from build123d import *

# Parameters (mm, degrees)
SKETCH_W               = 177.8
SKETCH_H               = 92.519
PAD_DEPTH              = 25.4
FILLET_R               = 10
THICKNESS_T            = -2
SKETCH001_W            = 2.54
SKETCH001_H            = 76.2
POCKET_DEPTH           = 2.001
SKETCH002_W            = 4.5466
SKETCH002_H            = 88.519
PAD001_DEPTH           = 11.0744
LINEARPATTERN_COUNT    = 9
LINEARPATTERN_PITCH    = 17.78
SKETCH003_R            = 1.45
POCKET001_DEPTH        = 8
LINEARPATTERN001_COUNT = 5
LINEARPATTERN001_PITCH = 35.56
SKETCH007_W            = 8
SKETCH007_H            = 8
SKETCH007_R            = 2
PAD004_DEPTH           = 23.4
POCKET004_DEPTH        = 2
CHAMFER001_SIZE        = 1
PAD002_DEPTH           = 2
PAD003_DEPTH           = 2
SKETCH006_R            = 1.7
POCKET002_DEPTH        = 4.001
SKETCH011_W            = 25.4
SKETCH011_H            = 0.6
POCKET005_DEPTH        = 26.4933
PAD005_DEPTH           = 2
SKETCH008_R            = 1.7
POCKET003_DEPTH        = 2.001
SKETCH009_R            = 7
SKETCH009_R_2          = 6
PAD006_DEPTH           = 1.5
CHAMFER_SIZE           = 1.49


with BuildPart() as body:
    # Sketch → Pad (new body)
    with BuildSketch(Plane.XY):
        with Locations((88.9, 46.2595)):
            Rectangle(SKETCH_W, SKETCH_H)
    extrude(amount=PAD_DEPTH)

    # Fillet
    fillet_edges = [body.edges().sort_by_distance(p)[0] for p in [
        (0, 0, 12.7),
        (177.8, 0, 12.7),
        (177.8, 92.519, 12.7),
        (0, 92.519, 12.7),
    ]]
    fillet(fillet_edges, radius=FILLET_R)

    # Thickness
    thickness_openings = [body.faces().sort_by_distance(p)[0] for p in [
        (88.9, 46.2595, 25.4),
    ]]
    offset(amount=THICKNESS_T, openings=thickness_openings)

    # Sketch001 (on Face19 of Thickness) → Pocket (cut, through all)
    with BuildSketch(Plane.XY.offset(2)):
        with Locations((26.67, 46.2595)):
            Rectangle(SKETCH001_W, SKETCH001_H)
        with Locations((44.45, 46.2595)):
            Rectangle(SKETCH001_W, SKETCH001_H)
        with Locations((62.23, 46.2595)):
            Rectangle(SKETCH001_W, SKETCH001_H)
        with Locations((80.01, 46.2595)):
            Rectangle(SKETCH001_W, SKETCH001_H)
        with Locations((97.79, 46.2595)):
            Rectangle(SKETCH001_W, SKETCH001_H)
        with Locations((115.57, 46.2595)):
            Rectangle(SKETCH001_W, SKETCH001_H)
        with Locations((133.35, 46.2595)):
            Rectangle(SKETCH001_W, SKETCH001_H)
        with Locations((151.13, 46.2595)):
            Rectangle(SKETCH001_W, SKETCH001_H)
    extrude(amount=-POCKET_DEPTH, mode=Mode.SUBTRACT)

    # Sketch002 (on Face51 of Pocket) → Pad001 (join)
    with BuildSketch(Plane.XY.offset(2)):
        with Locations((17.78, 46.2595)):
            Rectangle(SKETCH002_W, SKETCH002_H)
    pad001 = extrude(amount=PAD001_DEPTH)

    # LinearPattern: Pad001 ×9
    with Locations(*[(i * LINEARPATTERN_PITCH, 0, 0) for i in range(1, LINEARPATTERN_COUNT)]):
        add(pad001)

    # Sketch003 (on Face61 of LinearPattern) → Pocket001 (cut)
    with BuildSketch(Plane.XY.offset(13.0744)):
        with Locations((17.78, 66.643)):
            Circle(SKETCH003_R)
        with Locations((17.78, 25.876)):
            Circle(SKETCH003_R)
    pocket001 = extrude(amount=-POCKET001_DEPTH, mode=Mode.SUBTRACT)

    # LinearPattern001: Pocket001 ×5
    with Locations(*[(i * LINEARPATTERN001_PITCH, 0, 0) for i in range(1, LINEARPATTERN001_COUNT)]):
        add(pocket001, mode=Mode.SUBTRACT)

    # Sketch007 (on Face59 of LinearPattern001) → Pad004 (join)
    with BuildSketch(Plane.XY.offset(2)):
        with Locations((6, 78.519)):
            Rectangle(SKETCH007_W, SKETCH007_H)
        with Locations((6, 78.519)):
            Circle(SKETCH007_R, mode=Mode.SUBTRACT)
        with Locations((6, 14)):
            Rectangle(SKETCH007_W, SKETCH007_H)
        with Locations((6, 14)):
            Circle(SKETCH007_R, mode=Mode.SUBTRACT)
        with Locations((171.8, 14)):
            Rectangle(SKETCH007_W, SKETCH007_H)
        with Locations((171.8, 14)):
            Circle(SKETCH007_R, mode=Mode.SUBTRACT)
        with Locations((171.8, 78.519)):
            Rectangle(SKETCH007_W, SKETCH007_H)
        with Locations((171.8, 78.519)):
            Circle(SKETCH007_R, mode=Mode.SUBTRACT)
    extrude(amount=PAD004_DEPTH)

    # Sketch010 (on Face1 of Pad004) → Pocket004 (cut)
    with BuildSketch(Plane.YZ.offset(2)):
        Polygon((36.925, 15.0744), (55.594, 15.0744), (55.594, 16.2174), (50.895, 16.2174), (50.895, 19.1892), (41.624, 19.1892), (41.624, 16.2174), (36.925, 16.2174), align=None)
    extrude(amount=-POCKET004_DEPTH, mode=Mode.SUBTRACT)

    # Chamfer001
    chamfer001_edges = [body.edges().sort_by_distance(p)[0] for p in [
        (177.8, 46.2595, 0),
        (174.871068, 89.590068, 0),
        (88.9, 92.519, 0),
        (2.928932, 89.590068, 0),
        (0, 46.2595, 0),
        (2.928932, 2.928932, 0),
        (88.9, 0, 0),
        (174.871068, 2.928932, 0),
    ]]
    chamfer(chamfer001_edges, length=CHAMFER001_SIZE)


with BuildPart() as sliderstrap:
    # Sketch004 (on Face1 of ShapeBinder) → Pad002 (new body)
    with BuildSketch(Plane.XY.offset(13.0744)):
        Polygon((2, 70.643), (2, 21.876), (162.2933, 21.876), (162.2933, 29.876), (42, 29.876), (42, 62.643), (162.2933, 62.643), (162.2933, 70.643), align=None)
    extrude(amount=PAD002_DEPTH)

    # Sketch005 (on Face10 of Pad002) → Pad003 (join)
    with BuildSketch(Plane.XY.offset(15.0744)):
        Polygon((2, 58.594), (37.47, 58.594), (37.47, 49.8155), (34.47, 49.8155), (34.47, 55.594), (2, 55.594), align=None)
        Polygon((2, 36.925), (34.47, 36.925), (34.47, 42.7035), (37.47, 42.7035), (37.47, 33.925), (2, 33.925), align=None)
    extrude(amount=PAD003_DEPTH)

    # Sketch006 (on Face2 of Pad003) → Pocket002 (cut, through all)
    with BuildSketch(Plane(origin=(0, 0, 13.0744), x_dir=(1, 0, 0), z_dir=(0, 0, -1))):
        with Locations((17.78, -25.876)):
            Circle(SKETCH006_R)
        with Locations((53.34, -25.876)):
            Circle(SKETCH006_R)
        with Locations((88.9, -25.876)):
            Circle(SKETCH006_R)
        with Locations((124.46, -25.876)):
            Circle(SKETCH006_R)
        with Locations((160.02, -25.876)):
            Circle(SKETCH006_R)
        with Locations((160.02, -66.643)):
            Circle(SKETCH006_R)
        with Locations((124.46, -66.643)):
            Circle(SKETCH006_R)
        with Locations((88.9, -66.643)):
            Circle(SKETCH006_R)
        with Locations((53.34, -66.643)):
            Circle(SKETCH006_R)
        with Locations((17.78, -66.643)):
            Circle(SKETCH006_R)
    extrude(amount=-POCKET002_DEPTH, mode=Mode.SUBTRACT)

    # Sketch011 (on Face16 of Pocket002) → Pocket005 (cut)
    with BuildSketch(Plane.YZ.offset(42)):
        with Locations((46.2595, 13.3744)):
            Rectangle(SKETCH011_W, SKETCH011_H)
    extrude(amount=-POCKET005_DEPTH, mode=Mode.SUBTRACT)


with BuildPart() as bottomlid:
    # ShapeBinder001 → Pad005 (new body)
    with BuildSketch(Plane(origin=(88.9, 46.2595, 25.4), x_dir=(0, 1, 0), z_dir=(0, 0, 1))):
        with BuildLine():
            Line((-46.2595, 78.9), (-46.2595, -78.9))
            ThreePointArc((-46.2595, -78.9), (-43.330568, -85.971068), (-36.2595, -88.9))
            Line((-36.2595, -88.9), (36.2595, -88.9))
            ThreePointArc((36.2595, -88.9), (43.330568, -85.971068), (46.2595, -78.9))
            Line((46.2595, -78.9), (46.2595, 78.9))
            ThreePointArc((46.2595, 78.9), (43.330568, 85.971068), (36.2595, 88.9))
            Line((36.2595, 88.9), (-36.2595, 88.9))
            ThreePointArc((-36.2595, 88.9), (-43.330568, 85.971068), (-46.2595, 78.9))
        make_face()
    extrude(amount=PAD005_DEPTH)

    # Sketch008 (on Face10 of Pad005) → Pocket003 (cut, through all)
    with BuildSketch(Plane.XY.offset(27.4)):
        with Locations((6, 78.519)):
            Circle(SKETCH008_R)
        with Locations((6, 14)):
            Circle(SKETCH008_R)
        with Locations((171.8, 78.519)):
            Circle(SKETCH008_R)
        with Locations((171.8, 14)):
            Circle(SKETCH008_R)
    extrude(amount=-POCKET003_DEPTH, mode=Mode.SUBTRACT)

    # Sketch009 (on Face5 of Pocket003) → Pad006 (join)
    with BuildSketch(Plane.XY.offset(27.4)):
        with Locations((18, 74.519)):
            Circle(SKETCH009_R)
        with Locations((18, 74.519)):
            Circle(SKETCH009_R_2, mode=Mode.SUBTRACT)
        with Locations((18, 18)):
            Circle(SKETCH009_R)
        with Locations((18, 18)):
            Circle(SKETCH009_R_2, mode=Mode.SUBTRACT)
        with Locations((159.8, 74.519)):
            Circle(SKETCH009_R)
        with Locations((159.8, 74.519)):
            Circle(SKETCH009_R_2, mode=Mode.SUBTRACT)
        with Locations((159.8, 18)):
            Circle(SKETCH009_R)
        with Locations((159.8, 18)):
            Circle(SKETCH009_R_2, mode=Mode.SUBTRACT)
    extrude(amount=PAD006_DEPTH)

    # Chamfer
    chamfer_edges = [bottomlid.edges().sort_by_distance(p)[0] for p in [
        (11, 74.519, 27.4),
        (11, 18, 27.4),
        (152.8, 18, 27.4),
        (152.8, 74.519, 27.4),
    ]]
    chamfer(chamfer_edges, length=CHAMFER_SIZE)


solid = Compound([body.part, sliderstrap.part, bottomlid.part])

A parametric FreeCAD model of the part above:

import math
import FreeCAD as App
import Part
import Sketcher


def edges_at(feature, points):
    """Names of the edges that pass closest to the given points."""
    edges = feature.Shape.Edges
    near = lambda p: min(range(len(edges)), key=lambda i: edges[i].distToShape(Part.Vertex(*p))[0])
    return sorted({f"Edge{near(p) + 1}" for p in points})


def faces_at(feature, points):
    """Names of the faces that lie closest to the given points."""
    faces = feature.Shape.Faces
    near = lambda p: min(range(len(faces)), key=lambda i: faces[i].distToShape(Part.Vertex(*p))[0])
    return sorted({f"Face{near(p) + 1}" for p in points})


def add_polygon(sketch, points):
    """Adds a closed chain of lines whose ends are joined by coincident constraints."""
    first, n = sketch.GeometryCount, len(points)
    for a, b in zip(points, points[1:] + points[:1]):
        sketch.addGeometry(Part.LineSegment(App.Vector(*a, 0), App.Vector(*b, 0)), False)
    for i in range(n):
        sketch.addConstraint(Sketcher.Constraint("Coincident", first + i, 2, first + (i + 1) % n, 1))

doc = App.newDocument("Part")
body = doc.addObject("PartDesign::Body", "Body")

sketch1 = doc.addObject("Sketcher::SketchObject", "Sketch")
body.addObject(sketch1)
sketch1.AttachmentSupport = (doc.XY_Plane, [""])
sketch1.MapMode = "FlatFace"
add_polygon(sketch1, [(0, 92.519), (0, 0), (177.8, 0), (177.8, 92.519)])
sketch1.addConstraint([
    Sketcher.Constraint("Vertical", 0),
    Sketcher.Constraint("Horizontal", 1),
    Sketcher.Constraint("Vertical", 2),
    Sketcher.Constraint("Horizontal", 3),
    Sketcher.Constraint("Coincident", 0, 2, -1, 1),
    Sketcher.Constraint("DistanceX", 1, 1, 1, 2, 177.8),
    Sketcher.Constraint("DistanceY", 0, 2, 0, 1, 92.519),
])
pad1 = doc.addObject("PartDesign::Pad", "Pad")
body.addObject(pad1)
pad1.Profile = sketch1
pad1.Length = 25.4
doc.recompute()

fillet = doc.addObject("PartDesign::Fillet", "Fillet")
body.addObject(fillet)
fillet.Base = (pad1, edges_at(pad1, [
    (0, 0, 12.7),
    (177.8, 0, 12.7),
    (177.8, 92.519, 12.7),
    (0, 92.519, 12.7),
]))
fillet.Radius = 10
doc.recompute()

thickness = doc.addObject("PartDesign::Thickness", "Thickness")
body.addObject(thickness)
thickness.Base = (fillet, faces_at(fillet, [(88.9, 46.26, 25.4)]))
thickness.Value = 2
thickness.Reversed = True
thickness.Join = "Arc"

sketch2 = doc.addObject("Sketcher::SketchObject", "Sketch001")
body.addObject(sketch2)
sketch2.AttachmentSupport = (doc.XY_Plane, [""])
sketch2.MapMode = "FlatFace"
sketch2.AttachmentOffset = App.Placement(App.Vector(0, 0, 2), App.Rotation())
add_polygon(sketch2, [(25.4, 84.3595), (25.4, 8.1595), (27.94, 8.1595), (27.94, 84.3595)])
add_polygon(sketch2, [(43.18, 84.3595), (43.18, 8.1595), (45.72, 8.1595), (45.72, 84.3595)])
add_polygon(sketch2, [(60.96, 84.3595), (60.96, 8.1595), (63.5, 8.1595), (63.5, 84.3595)])
add_polygon(sketch2, [(78.74, 84.3595), (78.74, 8.1595), (81.28, 8.1595), (81.28, 84.3595)])
add_polygon(sketch2, [(96.52, 84.3595), (96.52, 8.1595), (99.06, 8.1595), (99.06, 84.3595)])
add_polygon(sketch2, [(114.3, 84.3595), (114.3, 8.1595), (116.84, 8.1595), (116.84, 84.3595)])
add_polygon(sketch2, [(132.08, 84.3595), (132.08, 8.1595), (134.62, 8.1595), (134.62, 84.3595)])
add_polygon(sketch2, [(149.86, 84.3595), (149.86, 8.1595), (152.4, 8.1595), (152.4, 84.3595)])
sketch2.addConstraint([
    Sketcher.Constraint("Vertical", 0),
    Sketcher.Constraint("Horizontal", 1),
    Sketcher.Constraint("Vertical", 2),
    Sketcher.Constraint("Horizontal", 3),
    Sketcher.Constraint("Vertical", 4),
    Sketcher.Constraint("Horizontal", 5),
    Sketcher.Constraint("Vertical", 6),
    Sketcher.Constraint("Horizontal", 7),
    Sketcher.Constraint("Vertical", 8),
    Sketcher.Constraint("Horizontal", 9),
    Sketcher.Constraint("Vertical", 10),
    Sketcher.Constraint("Horizontal", 11),
    Sketcher.Constraint("Vertical", 12),
    Sketcher.Constraint("Horizontal", 13),
    Sketcher.Constraint("Vertical", 14),
    Sketcher.Constraint("Horizontal", 15),
    Sketcher.Constraint("Vertical", 16),
    Sketcher.Constraint("Horizontal", 17),
    Sketcher.Constraint("Vertical", 18),
    Sketcher.Constraint("Horizontal", 19),
    Sketcher.Constraint("Vertical", 20),
    Sketcher.Constraint("Horizontal", 21),
    Sketcher.Constraint("Vertical", 22),
    Sketcher.Constraint("Horizontal", 23),
    Sketcher.Constraint("Vertical", 24),
    Sketcher.Constraint("Horizontal", 25),
    Sketcher.Constraint("Vertical", 26),
    Sketcher.Constraint("Horizontal", 27),
    Sketcher.Constraint("Vertical", 28),
    Sketcher.Constraint("Horizontal", 29),
    Sketcher.Constraint("Vertical", 30),
    Sketcher.Constraint("Horizontal", 31),
    Sketcher.Constraint("Horizontal", 1, 2, 4, 2),
    Sketcher.Constraint("Horizontal", 3, 2, 6, 2),
    Sketcher.Constraint("Horizontal", 5, 2, 8, 2),
    Sketcher.Constraint("Horizontal", 7, 2, 10, 2),
    Sketcher.Constraint("Horizontal", 9, 2, 12, 2),
    Sketcher.Constraint("Horizontal", 11, 2, 14, 2),
    Sketcher.Constraint("Horizontal", 13, 2, 16, 2),
    Sketcher.Constraint("Horizontal", 15, 2, 18, 2),
    Sketcher.Constraint("Horizontal", 17, 2, 20, 2),
    Sketcher.Constraint("Horizontal", 19, 2, 22, 2),
    Sketcher.Constraint("Horizontal", 21, 2, 24, 2),
    Sketcher.Constraint("Horizontal", 23, 2, 26, 2),
    Sketcher.Constraint("Horizontal", 25, 2, 28, 2),
    Sketcher.Constraint("Horizontal", 27, 2, 30, 2),
    Sketcher.Constraint("Equal", 3, 5),
    Sketcher.Constraint("Equal", 7, 9),
    Sketcher.Constraint("Equal", 11, 13),
    Sketcher.Constraint("Equal", 15, 17),
    Sketcher.Constraint("Equal", 19, 21),
    Sketcher.Constraint("Equal", 23, 25),
    Sketcher.Constraint("Equal", 27, 29),
    Sketcher.Constraint("DistanceY", 0, 2, 0, 1, 76.2),
    Sketcher.Constraint("DistanceX", 1, 1, 1, 2, 2.54),
    Sketcher.Constraint("DistanceX", -1, 1, 0, 2, 25.4),
    Sketcher.Constraint("DistanceX", -1, 1, 9, 2, 63.5),
    Sketcher.Constraint("DistanceX", -1, 1, 20, 2, 114.3),
    Sketcher.Constraint("DistanceX", -1, 1, 29, 2, 152.4),
    Sketcher.Constraint("DistanceX", 1, 2, 12, 2, 50.8),
    Sketcher.Constraint("DistanceX", 4, 2, 13, 2, 38.1),
    Sketcher.Constraint("DistanceX", 5, 2, 16, 2, 50.8),
    Sketcher.Constraint("DistanceX", 13, 2, 24, 2, 50.8),
    Sketcher.Constraint("DistanceY", -1, 1, 0, 2, 8.1595),
])
pocket1 = doc.addObject("PartDesign::Pocket", "Pocket")
body.addObject(pocket1)
pocket1.Profile = sketch2
pocket1.Type = "ThroughAll"

sketch3 = doc.addObject("Sketcher::SketchObject", "Sketch002")
body.addObject(sketch3)
sketch3.AttachmentSupport = (doc.XY_Plane, [""])
sketch3.MapMode = "FlatFace"
sketch3.AttachmentOffset = App.Placement(App.Vector(0, 0, 2), App.Rotation())
add_polygon(sketch3, [(15.5067, 90.519), (15.5067, 2), (20.0533, 2), (20.0533, 90.519)])
sketch3.addConstraint([
    Sketcher.Constraint("Vertical", 0),
    Sketcher.Constraint("Horizontal", 1),
    Sketcher.Constraint("Vertical", 2),
    Sketcher.Constraint("Horizontal", 3),
    Sketcher.Constraint("DistanceY", -1, 1, 0, 2, 2.0),
    Sketcher.Constraint("DistanceY", 0, 2, 0, 1, 88.519),
    Sketcher.Constraint("DistanceX", 1, 1, 1, 2, 4.5466),
    Sketcher.Constraint("DistanceX", -1, 1, 0, 2, 15.5067),
])
pad2 = doc.addObject("PartDesign::Pad", "Pad001")
body.addObject(pad2)
pad2.Profile = sketch3
pad2.Length = 11.0744
doc.recompute()

linearpattern = doc.addObject("PartDesign::LinearPattern", "LinearPattern")
body.addObject(linearpattern)
linearpattern.Originals = [pad2]
linearpattern.Direction = (doc.X_Axis, [""])
linearpattern.Mode = "offset"
linearpattern.Offset = 17.78
linearpattern.Occurrences = 9
body.Tip = linearpattern

sketch4 = doc.addObject("Sketcher::SketchObject", "Sketch003")
body.addObject(sketch4)
sketch4.AttachmentSupport = (doc.XY_Plane, [""])
sketch4.MapMode = "FlatFace"
sketch4.AttachmentOffset = App.Placement(App.Vector(0, 0, 13.0744), App.Rotation())
sketch4.addGeometry([
    Part.Circle(App.Vector(17.78, 66.643, 0), App.Vector(0, 0, 1), 1.45),
    Part.Circle(App.Vector(17.78, 25.876, 0), App.Vector(0, 0, 1), 1.45),
], False)
sketch4.addConstraint([
    Sketcher.Constraint("Equal", 0, 1),
    Sketcher.Constraint("Vertical", 0, 3, 1, 3),
    Sketcher.Constraint("Diameter", 0, 2.9),
    Sketcher.Constraint("DistanceX", -1, 1, 0, 3, 17.78),
    Sketcher.Constraint("DistanceY", -1, 1, 0, 3, 66.643),
    Sketcher.Constraint("DistanceY", -1, 1, 1, 3, 25.876),
])
pocket2 = doc.addObject("PartDesign::Pocket", "Pocket001")
body.addObject(pocket2)
pocket2.Profile = sketch4
pocket2.Length = 8
doc.recompute()

linearpattern2 = doc.addObject("PartDesign::LinearPattern", "LinearPattern001")
body.addObject(linearpattern2)
linearpattern2.Originals = [pocket2]
linearpattern2.Direction = (doc.X_Axis, [""])
linearpattern2.Mode = "offset"
linearpattern2.Offset = 35.56
linearpattern2.Occurrences = 5
body.Tip = linearpattern2

sketch5 = doc.addObject("Sketcher::SketchObject", "Sketch004")
body.addObject(sketch5)
sketch5.AttachmentSupport = (doc.XY_Plane, [""])
sketch5.MapMode = "FlatFace"
sketch5.AttachmentOffset = App.Placement(App.Vector(0, 0, 2), App.Rotation())
add_polygon(sketch5, [(2, 82.519), (2, 74.519), (10, 74.519), (10, 82.519)])
sketch5.addGeometry(Part.Circle(App.Vector(6, 78.519, 0), App.Vector(0, 0, 1), 2), False)
add_polygon(sketch5, [(2, 18), (2, 10), (10, 10), (10, 18)])
sketch5.addGeometry(Part.Circle(App.Vector(6, 14, 0), App.Vector(0, 0, 1), 2), False)
add_polygon(sketch5, [(167.8, 18), (167.8, 10), (175.8, 10), (175.8, 18)])
sketch5.addGeometry(Part.Circle(App.Vector(171.8, 14, 0), App.Vector(0, 0, 1), 2), False)
add_polygon(sketch5, [(167.8, 82.519), (167.8, 74.519), (175.8, 74.519), (175.8, 82.519)])
sketch5.addGeometry(Part.Circle(App.Vector(171.8, 78.519, 0), App.Vector(0, 0, 1), 2), False)
sketch5.addConstraint([
    Sketcher.Constraint("Vertical", 0),
    Sketcher.Constraint("Horizontal", 1),
    Sketcher.Constraint("Vertical", 2),
    Sketcher.Constraint("Horizontal", 3),
    Sketcher.Constraint("Vertical", 5),
    Sketcher.Constraint("Horizontal", 6),
    Sketcher.Constraint("Vertical", 7),
    Sketcher.Constraint("Horizontal", 8),
    Sketcher.Constraint("Vertical", 10),
    Sketcher.Constraint("Horizontal", 11),
    Sketcher.Constraint("Vertical", 12),
    Sketcher.Constraint("Horizontal", 13),
    Sketcher.Constraint("Vertical", 15),
    Sketcher.Constraint("Horizontal", 16),
    Sketcher.Constraint("Vertical", 17),
    Sketcher.Constraint("Horizontal", 18),
    Sketcher.Constraint("Equal", 4, 9),
    Sketcher.Constraint("Equal", 9, 14),
    Sketcher.Constraint("Equal", 14, 19),
    Sketcher.Constraint("Horizontal", 9, 3, 14, 3),
    Sketcher.Constraint("Horizontal", 4, 3, 19, 3),
    Sketcher.Constraint("Horizontal", 6, 2, 10, 2),
    Sketcher.Constraint("Horizontal", 8, 2, 12, 2),
    Sketcher.Constraint("Horizontal", 1, 2, 15, 2),
    Sketcher.Constraint("Horizontal", 3, 2, 17, 2),
    Sketcher.Constraint("Vertical", 4, 3, 9, 3),
    Sketcher.Constraint("Vertical", 14, 3, 19, 3),
    Sketcher.Constraint("Vertical", 3, 2, 5, 2),
    Sketcher.Constraint("Vertical", 2, 2, 6, 2),
    Sketcher.Constraint("Vertical", 13, 2, 15, 2),
    Sketcher.Constraint("Vertical", 12, 2, 16, 2),
    Sketcher.Constraint("Equal", 8, 11),
    Sketcher.Constraint("Equal", 18, 0),
    Sketcher.Constraint("Equal", 2, 5),
    Sketcher.Constraint("Diameter", 4, 4.0),
    Sketcher.Constraint("DistanceX", 1, 1, 1, 2, 8.0),
    Sketcher.Constraint("DistanceX", -1, 1, 4, 3, 6.0),
    Sketcher.Constraint("DistanceY", -1, 1, 9, 3, 14.0),
    Sketcher.Constraint("DistanceX", -1, 1, 0, 2, 2.0),
    Sketcher.Constraint("DistanceY", -1, 1, 5, 2, 10.0),
    Sketcher.Constraint("DistanceY", 0, 2, 4, 3, 4.0),
    Sketcher.Constraint("DistanceX", 10, 2, 14, 3, 4.0),
    Sketcher.Constraint("DistanceX", -1, 1, 14, 3, 171.8),
    Sketcher.Constraint("DistanceY", -1, 1, 4, 3, 78.519),
])
pad3 = doc.addObject("PartDesign::Pad", "Pad002")
body.addObject(pad3)
pad3.Profile = sketch5
pad3.Length = 23.4

sketch6 = doc.addObject("Sketcher::SketchObject", "Sketch005")
body.addObject(sketch6)
sketch6.AttachmentSupport = (doc.YZ_Plane, [""])
sketch6.MapMode = "FlatFace"
sketch6.AttachmentOffset = App.Placement(App.Vector(0, 0, 2), App.Rotation())
add_polygon(sketch6, [(36.925, 15.0744), (55.594, 15.0744), (55.594, 16.2174), (50.895, 16.2174), (50.895, 19.1892), (41.624, 19.1892), (41.624, 16.2174), (36.925, 16.2174)])
sketch6.addConstraint([
    Sketcher.Constraint("Horizontal", 0),
    Sketcher.Constraint("Vertical", 1),
    Sketcher.Constraint("Horizontal", 2),
    Sketcher.Constraint("Vertical", 3),
    Sketcher.Constraint("Horizontal", 4),
    Sketcher.Constraint("Vertical", 5),
    Sketcher.Constraint("Horizontal", 6),
    Sketcher.Constraint("Vertical", 7),
    Sketcher.Constraint("Horizontal", 2, 2, 5, 2),
    Sketcher.Constraint("Equal", 2, 6),
    Sketcher.Constraint("DistanceX", 0, 1, 0, 2, 18.669),
    Sketcher.Constraint("DistanceX", 2, 2, 2, 1, 4.699),
    Sketcher.Constraint("DistanceY", 1, 1, 1, 2, 1.143),
    Sketcher.Constraint("DistanceY", 3, 1, 3, 2, 2.9718),
    Sketcher.Constraint("DistanceX", -1, 1, 0, 2, 55.594),
    Sketcher.Constraint("DistanceY", -1, 1, 0, 2, 15.0744),
])
pocket3 = doc.addObject("PartDesign::Pocket", "Pocket002")
body.addObject(pocket3)
pocket3.Profile = sketch6
pocket3.Length = 2
doc.recompute()

chamfer = doc.addObject("PartDesign::Chamfer", "Chamfer")
body.addObject(chamfer)
chamfer.Base = (pocket3, edges_at(pocket3, [
    (177.8, 46.26, 0),
    (174.871, 89.59, 0),
    (88.9, 92.519, 0),
    (2.929, 89.59, 0),
    (0, 46.26, 0),
    (2.929, 2.929, 0),
    (88.9, 0, 0),
    (174.871, 2.929, 0),
]))
chamfer.Size = 1
body2 = doc.addObject("PartDesign::Body", "Body001")

sketch7 = doc.addObject("Sketcher::SketchObject", "Sketch006")
body2.addObject(sketch7)
sketch7.AttachmentSupport = (doc.getObject("XY_Plane001"), [""])
sketch7.MapMode = "FlatFace"
sketch7.AttachmentOffset = App.Placement(App.Vector(0, 0, 13.0744), App.Rotation())
add_polygon(sketch7, [(2, 70.643), (2, 21.876), (162.2933, 21.876), (162.2933, 29.876), (42, 29.876), (42, 62.643), (162.2933, 62.643), (162.2933, 70.643)])
sketch7.addConstraint([
    Sketcher.Constraint("Vertical", 0),
    Sketcher.Constraint("Horizontal", 1),
    Sketcher.Constraint("Vertical", 2),
    Sketcher.Constraint("Horizontal", 3),
    Sketcher.Constraint("Vertical", 4),
    Sketcher.Constraint("Horizontal", 5),
    Sketcher.Constraint("Vertical", 6),
    Sketcher.Constraint("Horizontal", 7),
    Sketcher.Constraint("Vertical", 2, 2, 5, 2),
    Sketcher.Constraint("Equal", 2, 6),
    Sketcher.Constraint("DistanceY", 2, 1, 2, 2, 8.0),
    Sketcher.Constraint("DistanceX", -1, 1, 0, 2, 2.0),
    Sketcher.Constraint("DistanceX", -1, 1, 3, 2, 42.0),
    Sketcher.Constraint("DistanceY", 0, 2, 0, 1, 48.767),
    Sketcher.Constraint("DistanceX", 1, 1, 1, 2, 160.2933),
    Sketcher.Constraint("DistanceY", -1, 1, 0, 2, 21.876),
])
pad4 = doc.addObject("PartDesign::Pad", "Pad003")
body2.addObject(pad4)
pad4.Profile = sketch7
pad4.Length = 2

sketch8 = doc.addObject("Sketcher::SketchObject", "Sketch007")
body2.addObject(sketch8)
sketch8.AttachmentSupport = (doc.getObject("XY_Plane001"), [""])
sketch8.MapMode = "FlatFace"
sketch8.AttachmentOffset = App.Placement(App.Vector(0, 0, 15.0744), App.Rotation())
add_polygon(sketch8, [(37.47, 58.594), (2, 58.594), (2, 55.594), (34.47, 55.594), (34.47, 49.8155), (37.47, 49.8155)])
add_polygon(sketch8, [(34.47, 36.925), (2, 36.925), (2, 33.925), (37.47, 33.925), (37.47, 42.7035), (34.47, 42.7035)])
sketch8.addConstraint([
    Sketcher.Constraint("Horizontal", 0),
    Sketcher.Constraint("Vertical", 1),
    Sketcher.Constraint("Horizontal", 2),
    Sketcher.Constraint("Vertical", 3),
    Sketcher.Constraint("Horizontal", 4),
    Sketcher.Constraint("Vertical", 5),
    Sketcher.Constraint("Horizontal", 6),
    Sketcher.Constraint("Vertical", 7),
    Sketcher.Constraint("Horizontal", 8),
    Sketcher.Constraint("Vertical", 9),
    Sketcher.Constraint("Horizontal", 10),
    Sketcher.Constraint("Vertical", 11),
    Sketcher.Constraint("Vertical", 1, 2, 6, 2),
    Sketcher.Constraint("Vertical", 5, 2, 8, 2),
    Sketcher.Constraint("Vertical", 3, 2, 10, 2),
    Sketcher.Constraint("Equal", 10, 1),
    Sketcher.Constraint("Equal", 1, 7),
    Sketcher.Constraint("Equal", 5, 9),
    Sketcher.Constraint("DistanceX", 4, 1, 4, 2, 3.0),
    Sketcher.Constraint("DistanceX", -1, 1, 0, 2, 2.0),
    Sketcher.Constraint("DistanceX", 0, 2, 0, 1, 35.47),
    Sketcher.Constraint("DistanceY", 3, 2, 3, 1, 5.7785),
    Sketcher.Constraint("DistanceY", -1, 1, 0, 2, 58.594),
    Sketcher.Constraint("DistanceY", -1, 1, 6, 2, 36.925),
])
pad5 = doc.addObject("PartDesign::Pad", "Pad004")
body2.addObject(pad5)
pad5.Profile = sketch8
pad5.Length = 2

sketch9 = doc.addObject("Sketcher::SketchObject", "Sketch008")
body2.addObject(sketch9)
sketch9.AttachmentSupport = (doc.getObject("XY_Plane001"), [""])
sketch9.MapMode = "FlatFace"
sketch9.AttachmentOffset = App.Placement(App.Vector(0, 0, 13.0744), App.Rotation())
sketch9.addGeometry([
    Part.Circle(App.Vector(17.78, 25.876, 0), App.Vector(0, 0, 1), 1.7),
    Part.Circle(App.Vector(53.34, 25.876, 0), App.Vector(0, 0, 1), 1.7),
    Part.Circle(App.Vector(88.9, 25.876, 0), App.Vector(0, 0, 1), 1.7),
    Part.Circle(App.Vector(124.46, 25.876, 0), App.Vector(0, 0, 1), 1.7),
    Part.Circle(App.Vector(160.02, 25.876, 0), App.Vector(0, 0, 1), 1.7),
    Part.Circle(App.Vector(160.02, 66.643, 0), App.Vector(0, 0, 1), 1.7),
    Part.Circle(App.Vector(124.46, 66.643, 0), App.Vector(0, 0, 1), 1.7),
    Part.Circle(App.Vector(88.9, 66.643, 0), App.Vector(0, 0, 1), 1.7),
    Part.Circle(App.Vector(53.34, 66.643, 0), App.Vector(0, 0, 1), 1.7),
    Part.Circle(App.Vector(17.78, 66.643, 0), App.Vector(0, 0, 1), 1.7),
], False)
sketch9.addConstraint([
    Sketcher.Constraint("Equal", 0, 1),
    Sketcher.Constraint("Equal", 1, 2),
    Sketcher.Constraint("Equal", 2, 3),
    Sketcher.Constraint("Equal", 3, 4),
    Sketcher.Constraint("Equal", 4, 5),
    Sketcher.Constraint("Equal", 5, 6),
    Sketcher.Constraint("Equal", 6, 7),
    Sketcher.Constraint("Equal", 7, 8),
    Sketcher.Constraint("Equal", 8, 9),
    Sketcher.Constraint("Horizontal", 0, 3, 1, 3),
    Sketcher.Constraint("Horizontal", 1, 3, 2, 3),
    Sketcher.Constraint("Horizontal", 2, 3, 3, 3),
    Sketcher.Constraint("Horizontal", 3, 3, 4, 3),
    Sketcher.Constraint("Horizontal", 5, 3, 6, 3),
    Sketcher.Constraint("Horizontal", 6, 3, 7, 3),
    Sketcher.Constraint("Horizontal", 7, 3, 8, 3),
    Sketcher.Constraint("Horizontal", 8, 3, 9, 3),
    Sketcher.Constraint("Vertical", 4, 3, 5, 3),
    Sketcher.Constraint("Vertical", 3, 3, 6, 3),
    Sketcher.Constraint("Vertical", 2, 3, 7, 3),
    Sketcher.Constraint("Vertical", 1, 3, 8, 3),
    Sketcher.Constraint("Vertical", 0, 3, 9, 3),
    Sketcher.Constraint("Diameter", 0, 3.4),
    Sketcher.Constraint("DistanceX", -1, 1, 2, 3, 88.9),
    Sketcher.Constraint("DistanceX", -1, 1, 0, 3, 17.78),
    Sketcher.Constraint("DistanceX", -1, 1, 1, 3, 53.34),
    Sketcher.Constraint("DistanceX", -1, 1, 3, 3, 124.46),
    Sketcher.Constraint("DistanceX", -1, 1, 4, 3, 160.02),
    Sketcher.Constraint("DistanceY", -1, 1, 0, 3, 25.876),
    Sketcher.Constraint("DistanceY", -1, 1, 5, 3, 66.643),
])
pocket4 = doc.addObject("PartDesign::Pocket", "Pocket003")
body2.addObject(pocket4)
pocket4.Profile = sketch9
pocket4.Type = "ThroughAll"
pocket4.Reversed = True

sketch10 = doc.addObject("Sketcher::SketchObject", "Sketch009")
body2.addObject(sketch10)
sketch10.AttachmentSupport = (doc.getObject("YZ_Plane001"), [""])
sketch10.MapMode = "FlatFace"
sketch10.AttachmentOffset = App.Placement(App.Vector(0, 0, 42), App.Rotation())
add_polygon(sketch10, [(33.5595, 13.6744), (33.5595, 13.0744), (58.9595, 13.0744), (58.9595, 13.6744)])
sketch10.addConstraint([
    Sketcher.Constraint("Vertical", 0),
    Sketcher.Constraint("Horizontal", 1),
    Sketcher.Constraint("Vertical", 2),
    Sketcher.Constraint("Horizontal", 3),
    Sketcher.Constraint("DistanceX", 1, 1, 1, 2, 25.4),
    Sketcher.Constraint("DistanceY", 0, 2, 0, 1, 0.6),
    Sketcher.Constraint("DistanceX", -1, 1, 0, 2, 33.5595),
    Sketcher.Constraint("DistanceY", -1, 1, 0, 2, 13.0744),
])
pocket5 = doc.addObject("PartDesign::Pocket", "Pocket004")
body2.addObject(pocket5)
pocket5.Profile = sketch10
pocket5.Length = 26.4933
body3 = doc.addObject("PartDesign::Body", "Body002")

sketch11 = doc.addObject("Sketcher::SketchObject", "Sketch010")
body3.addObject(sketch11)
sketch11.AttachmentSupport = (doc.getObject("XY_Plane002"), [""])
sketch11.MapMode = "FlatFace"
sketch11.AttachmentOffset = App.Placement(App.Vector(0, 0, 25.4), App.Rotation())
sketch11.addGeometry([
    Part.LineSegment(App.Vector(10, 0, 0), App.Vector(167.8, 0, 0)),
    Part.ArcOfCircle(Part.Circle(App.Vector(167.800001, 9.999999, 0), App.Vector(0, 0, 1), 9.999999), math.radians(-90.000004), math.radians(0.000004)),
    Part.LineSegment(App.Vector(177.8, 10, 0), App.Vector(177.8, 82.519, 0)),
    Part.ArcOfCircle(Part.Circle(App.Vector(167.800001, 82.519001, 0), App.Vector(0, 0, 1), 9.999999), math.radians(-0.000004), math.radians(90.000004)),
    Part.LineSegment(App.Vector(167.8, 92.519, 0), App.Vector(10, 92.519, 0)),
    Part.ArcOfCircle(Part.Circle(App.Vector(9.999999, 82.519001, 0), App.Vector(0, 0, 1), 9.999999), math.radians(89.999996), math.radians(180.000004)),
    Part.LineSegment(App.Vector(0, 82.519, 0), App.Vector(0, 10, 0)),
    Part.ArcOfCircle(Part.Circle(App.Vector(9.999999, 9.999999, 0), App.Vector(0, 0, 1), 9.999999), math.radians(179.999996), math.radians(270.000004)),
], False)
sketch11.addConstraint([
    Sketcher.Constraint("Tangent", 0, 2, 1, 1),
    Sketcher.Constraint("Tangent", 1, 2, 2, 1),
    Sketcher.Constraint("Tangent", 2, 2, 3, 1),
    Sketcher.Constraint("Tangent", 3, 2, 4, 1),
    Sketcher.Constraint("Tangent", 4, 2, 5, 1),
    Sketcher.Constraint("Tangent", 5, 2, 6, 1),
    Sketcher.Constraint("Tangent", 6, 2, 7, 1),
    Sketcher.Constraint("Tangent", 7, 2, 0, 1),
    Sketcher.Constraint("Horizontal", 0),
    Sketcher.Constraint("Vertical", 2),
    Sketcher.Constraint("Horizontal", 4),
    Sketcher.Constraint("Vertical", 6),
    Sketcher.Constraint("Equal", 1, 3),
    Sketcher.Constraint("Equal", 3, 5),
    Sketcher.Constraint("Equal", 5, 7),
    Sketcher.Constraint("PointOnObject", 0, 2, -1),
    Sketcher.Constraint("PointOnObject", 5, 2, -2),
    Sketcher.Constraint("Radius", 1, 9.999999),
    Sketcher.Constraint("DistanceX", 0, 1, 0, 2, 157.8),
    Sketcher.Constraint("DistanceY", 2, 1, 2, 2, 72.519),
])
pad6 = doc.addObject("PartDesign::Pad", "Pad005")
body3.addObject(pad6)
pad6.Profile = sketch11
pad6.Length = 2

sketch12 = doc.addObject("Sketcher::SketchObject", "Sketch011")
body3.addObject(sketch12)
sketch12.AttachmentSupport = (doc.getObject("XY_Plane002"), [""])
sketch12.MapMode = "FlatFace"
sketch12.AttachmentOffset = App.Placement(App.Vector(0, 0, 27.4), App.Rotation())
sketch12.addGeometry([
    Part.Circle(App.Vector(6, 78.519, 0), App.Vector(0, 0, 1), 1.7),
    Part.Circle(App.Vector(6, 14, 0), App.Vector(0, 0, 1), 1.7),
    Part.Circle(App.Vector(171.8, 78.519, 0), App.Vector(0, 0, 1), 1.7),
    Part.Circle(App.Vector(171.8, 14, 0), App.Vector(0, 0, 1), 1.7),
], False)
sketch12.addConstraint([
    Sketcher.Constraint("Equal", 0, 1),
    Sketcher.Constraint("Equal", 1, 2),
    Sketcher.Constraint("Equal", 2, 3),
    Sketcher.Constraint("Horizontal", 0, 3, 2, 3),
    Sketcher.Constraint("Horizontal", 1, 3, 3, 3),
    Sketcher.Constraint("Vertical", 0, 3, 1, 3),
    Sketcher.Constraint("Vertical", 2, 3, 3, 3),
    Sketcher.Constraint("Diameter", 0, 3.4),
    Sketcher.Constraint("DistanceX", -1, 1, 0, 3, 6.0),
    Sketcher.Constraint("DistanceY", -1, 1, 1, 3, 14.0),
    Sketcher.Constraint("DistanceX", -1, 1, 2, 3, 171.8),
    Sketcher.Constraint("DistanceY", -1, 1, 0, 3, 78.519),
])
pocket6 = doc.addObject("PartDesign::Pocket", "Pocket005")
body3.addObject(pocket6)
pocket6.Profile = sketch12
pocket6.Type = "ThroughAll"

sketch13 = doc.addObject("Sketcher::SketchObject", "Sketch012")
body3.addObject(sketch13)
sketch13.AttachmentSupport = (doc.getObject("XY_Plane002"), [""])
sketch13.MapMode = "FlatFace"
sketch13.AttachmentOffset = App.Placement(App.Vector(0, 0, 27.4), App.Rotation())
sketch13.addGeometry([
    Part.Circle(App.Vector(18, 74.519, 0), App.Vector(0, 0, 1), 7),
    Part.Circle(App.Vector(18, 74.519, 0), App.Vector(0, 0, 1), 6),
    Part.Circle(App.Vector(18, 18, 0), App.Vector(0, 0, 1), 7),
    Part.Circle(App.Vector(18, 18, 0), App.Vector(0, 0, 1), 6),
    Part.Circle(App.Vector(159.8, 74.519, 0), App.Vector(0, 0, 1), 7),
    Part.Circle(App.Vector(159.8, 74.519, 0), App.Vector(0, 0, 1), 6),
    Part.Circle(App.Vector(159.8, 18, 0), App.Vector(0, 0, 1), 7),
    Part.Circle(App.Vector(159.8, 18, 0), App.Vector(0, 0, 1), 6),
], False)
sketch13.addConstraint([
    Sketcher.Constraint("Coincident", 1, 3, 0, 3),
    Sketcher.Constraint("Coincident", 3, 3, 2, 3),
    Sketcher.Constraint("Coincident", 5, 3, 4, 3),
    Sketcher.Constraint("Coincident", 7, 3, 6, 3),
    Sketcher.Constraint("Equal", 0, 2),
    Sketcher.Constraint("Equal", 1, 3),
    Sketcher.Constraint("Equal", 2, 4),
    Sketcher.Constraint("Equal", 3, 5),
    Sketcher.Constraint("Equal", 4, 6),
    Sketcher.Constraint("Equal", 5, 7),
    Sketcher.Constraint("Horizontal", 1, 3, 4, 3),
    Sketcher.Constraint("Horizontal", 3, 3, 6, 3),
    Sketcher.Constraint("Vertical", 1, 3, 2, 3),
    Sketcher.Constraint("Vertical", 5, 3, 6, 3),
    Sketcher.Constraint("Diameter", 0, 14.0),
    Sketcher.Constraint("Diameter", 1, 12.0),
    Sketcher.Constraint("DistanceX", -1, 1, 0, 3, 18.0),
    Sketcher.Constraint("DistanceY", -1, 1, 2, 3, 18.0),
    Sketcher.Constraint("DistanceX", -1, 1, 4, 3, 159.8),
    Sketcher.Constraint("DistanceY", -1, 1, 0, 3, 74.519),
])
pad7 = doc.addObject("PartDesign::Pad", "Pad006")
body3.addObject(pad7)
pad7.Profile = sketch13
pad7.Length = 1.5
doc.recompute()

chamfer2 = doc.addObject("PartDesign::Chamfer", "Chamfer001")
body3.addObject(chamfer2)
chamfer2.Base = (pad7, edges_at(pad7, [
    (11, 74.519, 27.4),
    (11, 18, 27.4),
    (152.8, 18, 27.4),
    (152.8, 74.519, 27.4),
]))
chamfer2.Size = 1.49

doc.recompute()
